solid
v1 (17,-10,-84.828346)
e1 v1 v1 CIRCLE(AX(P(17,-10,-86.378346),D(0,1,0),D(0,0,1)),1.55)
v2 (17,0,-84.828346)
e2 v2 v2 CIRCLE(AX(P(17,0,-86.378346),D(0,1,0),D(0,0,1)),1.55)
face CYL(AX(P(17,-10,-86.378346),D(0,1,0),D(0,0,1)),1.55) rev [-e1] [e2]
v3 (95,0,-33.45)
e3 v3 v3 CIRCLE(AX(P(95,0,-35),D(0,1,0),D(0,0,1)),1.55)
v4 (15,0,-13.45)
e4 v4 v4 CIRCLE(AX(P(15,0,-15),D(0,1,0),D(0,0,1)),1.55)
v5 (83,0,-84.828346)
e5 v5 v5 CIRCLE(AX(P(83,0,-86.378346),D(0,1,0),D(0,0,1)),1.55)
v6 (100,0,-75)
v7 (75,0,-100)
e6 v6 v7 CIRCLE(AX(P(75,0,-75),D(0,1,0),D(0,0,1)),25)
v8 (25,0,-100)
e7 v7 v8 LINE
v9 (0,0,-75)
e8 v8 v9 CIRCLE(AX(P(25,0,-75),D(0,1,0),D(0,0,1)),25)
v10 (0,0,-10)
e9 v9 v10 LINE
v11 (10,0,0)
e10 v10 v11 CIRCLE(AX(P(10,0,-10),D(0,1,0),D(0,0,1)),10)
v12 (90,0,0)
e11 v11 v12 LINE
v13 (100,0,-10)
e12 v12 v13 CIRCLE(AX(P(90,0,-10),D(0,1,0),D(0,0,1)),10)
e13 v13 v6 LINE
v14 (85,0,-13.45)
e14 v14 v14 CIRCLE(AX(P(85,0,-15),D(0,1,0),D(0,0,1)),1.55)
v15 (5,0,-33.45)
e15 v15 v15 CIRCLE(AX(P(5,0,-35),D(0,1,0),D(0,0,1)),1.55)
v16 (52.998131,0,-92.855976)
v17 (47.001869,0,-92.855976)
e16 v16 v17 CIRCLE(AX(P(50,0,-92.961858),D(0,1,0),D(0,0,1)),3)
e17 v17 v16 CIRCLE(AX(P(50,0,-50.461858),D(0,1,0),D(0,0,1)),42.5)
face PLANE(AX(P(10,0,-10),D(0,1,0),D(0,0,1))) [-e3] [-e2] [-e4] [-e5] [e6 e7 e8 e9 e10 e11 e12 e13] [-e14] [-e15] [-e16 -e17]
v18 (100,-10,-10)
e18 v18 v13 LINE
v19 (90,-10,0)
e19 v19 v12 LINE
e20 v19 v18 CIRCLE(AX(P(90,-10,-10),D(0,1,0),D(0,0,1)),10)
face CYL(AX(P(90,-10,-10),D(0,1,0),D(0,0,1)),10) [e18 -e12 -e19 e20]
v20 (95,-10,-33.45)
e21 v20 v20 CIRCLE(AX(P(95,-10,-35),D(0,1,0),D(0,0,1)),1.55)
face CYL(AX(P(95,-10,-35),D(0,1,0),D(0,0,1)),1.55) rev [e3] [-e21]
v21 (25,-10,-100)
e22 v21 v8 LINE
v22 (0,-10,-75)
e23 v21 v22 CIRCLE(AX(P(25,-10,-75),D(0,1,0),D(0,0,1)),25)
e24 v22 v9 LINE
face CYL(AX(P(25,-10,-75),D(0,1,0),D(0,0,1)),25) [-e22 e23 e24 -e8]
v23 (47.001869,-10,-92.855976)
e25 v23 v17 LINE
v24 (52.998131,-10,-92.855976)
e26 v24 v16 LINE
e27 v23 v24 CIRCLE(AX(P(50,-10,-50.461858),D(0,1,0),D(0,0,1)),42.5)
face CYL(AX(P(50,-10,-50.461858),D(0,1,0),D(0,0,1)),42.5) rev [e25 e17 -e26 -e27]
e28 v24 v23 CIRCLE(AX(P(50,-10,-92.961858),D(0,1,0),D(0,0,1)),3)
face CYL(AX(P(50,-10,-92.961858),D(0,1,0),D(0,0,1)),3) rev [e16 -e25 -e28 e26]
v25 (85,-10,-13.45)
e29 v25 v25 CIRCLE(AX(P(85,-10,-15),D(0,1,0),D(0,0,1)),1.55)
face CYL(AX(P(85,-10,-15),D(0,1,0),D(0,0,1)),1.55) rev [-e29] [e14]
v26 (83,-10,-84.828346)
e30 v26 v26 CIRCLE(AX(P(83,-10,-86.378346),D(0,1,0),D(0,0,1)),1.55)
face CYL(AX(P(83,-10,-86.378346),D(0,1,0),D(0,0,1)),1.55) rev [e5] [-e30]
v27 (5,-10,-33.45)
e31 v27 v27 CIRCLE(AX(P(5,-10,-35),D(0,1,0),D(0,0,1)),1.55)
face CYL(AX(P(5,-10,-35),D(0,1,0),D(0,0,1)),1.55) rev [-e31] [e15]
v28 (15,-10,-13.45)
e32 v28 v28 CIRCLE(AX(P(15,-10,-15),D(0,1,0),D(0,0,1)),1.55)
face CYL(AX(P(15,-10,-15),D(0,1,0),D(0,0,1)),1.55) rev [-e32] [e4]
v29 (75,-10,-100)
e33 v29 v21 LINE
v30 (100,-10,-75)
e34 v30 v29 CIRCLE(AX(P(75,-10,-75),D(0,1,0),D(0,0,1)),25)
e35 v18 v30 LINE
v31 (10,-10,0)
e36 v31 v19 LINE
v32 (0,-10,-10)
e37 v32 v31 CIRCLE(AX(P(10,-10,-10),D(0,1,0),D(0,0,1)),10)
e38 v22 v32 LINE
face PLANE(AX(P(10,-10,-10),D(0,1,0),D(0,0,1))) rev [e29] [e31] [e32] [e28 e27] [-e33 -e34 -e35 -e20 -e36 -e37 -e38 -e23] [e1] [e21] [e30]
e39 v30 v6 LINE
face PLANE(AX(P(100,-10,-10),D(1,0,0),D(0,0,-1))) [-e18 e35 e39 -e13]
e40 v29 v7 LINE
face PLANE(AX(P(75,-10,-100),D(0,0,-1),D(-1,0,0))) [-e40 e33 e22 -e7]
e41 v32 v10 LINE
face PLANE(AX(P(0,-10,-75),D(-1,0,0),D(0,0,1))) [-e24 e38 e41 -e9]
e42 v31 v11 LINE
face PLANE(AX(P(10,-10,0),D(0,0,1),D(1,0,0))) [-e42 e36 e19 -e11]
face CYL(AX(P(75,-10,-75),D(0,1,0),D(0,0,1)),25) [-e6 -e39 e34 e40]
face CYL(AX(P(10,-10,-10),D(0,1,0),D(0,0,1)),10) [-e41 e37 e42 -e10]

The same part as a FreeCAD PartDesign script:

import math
import FreeCAD as App
import Part
import Sketcher
Q = App.Units.Quantity

doc = App.newDocument("Part")
body = doc.addObject("PartDesign::Body", "Body")

# Sketch on XZ plane
sketch1 = body.newObject("Sketcher::SketchObject", "Sketch")
sketch1.AttachmentSupport = (doc.getObject("XZ_Plane"), [""])
sketch1.MapMode = "FlatFace"
sketch1.addGeometry(Part.LineSegment(App.Vector(10, 0, 0), App.Vector(90, 0, 0)), False)
sketch1.addGeometry(Part.ArcOfCircle(Part.Circle(App.Vector(90, -10, 0), App.Vector(0, 0, 1), 10), math.radians(0), math.radians(90)), False)
sketch1.addGeometry(Part.LineSegment(App.Vector(100, -10, 0), App.Vector(100, -75, 0)), False)
sketch1.addGeometry(Part.ArcOfCircle(Part.Circle(App.Vector(75, -75, 0), App.Vector(0, 0, 1), 25), math.radians(-90), math.radians(0)), False)
sketch1.addGeometry(Part.LineSegment(App.Vector(75, -100, 0), App.Vector(25, -100, 0)), False)
sketch1.addGeometry(Part.ArcOfCircle(Part.Circle(App.Vector(25, -75, 0), App.Vector(0, 0, 1), 25), math.radians(180), math.radians(270)), False)
sketch1.addGeometry(Part.LineSegment(App.Vector(0, -75, 0), App.Vector(0, -10, 0)), False)
sketch1.addGeometry(Part.ArcOfCircle(Part.Circle(App.Vector(10, -10, 0), App.Vector(0, 0, 1), 10), math.radians(90), math.radians(180)), False)
sketch1.addConstraint(Sketcher.Constraint("Tangent", 0, 2, 1, 2))
sketch1.addConstraint(Sketcher.Constraint("Tangent", 1, 1, 2, 1))
sketch1.addConstraint(Sketcher.Constraint("Tangent", 2, 2, 3, 2))
sketch1.addConstraint(Sketcher.Constraint("Tangent", 3, 1, 4, 1))
sketch1.addConstraint(Sketcher.Constraint("Tangent", 4, 2, 5, 2))
sketch1.addConstraint(Sketcher.Constraint("Tangent", 5, 1, 6, 1))
sketch1.addConstraint(Sketcher.Constraint("Tangent", 6, 2, 7, 2))
sketch1.addConstraint(Sketcher.Constraint("Tangent", 7, 1, 0, 1))
sketch1.addConstraint(Sketcher.Constraint("Horizontal", 0))
sketch1.addConstraint(Sketcher.Constraint("Vertical", 2))
sketch1.addConstraint(Sketcher.Constraint("Horizontal", 4))
sketch1.addConstraint(Sketcher.Constraint("Vertical", 6))
sketch1.addConstraint(Sketcher.Constraint("Equal", 3, 5))
sketch1.addConstraint(Sketcher.Constraint("Equal", 1, 7))
sketch1.addConstraint(Sketcher.Constraint("PointOnObject", 0, 2, -1))
sketch1.addConstraint(Sketcher.Constraint("PointOnObject", 5, 1, -2))
sketch1.addConstraint(Sketcher.Constraint("Radius", 1, Q("10 mm")))
sketch1.addConstraint(Sketcher.Constraint("Radius", 3, Q("25 mm")))
sketch1.addConstraint(Sketcher.Constraint("DistanceX", 0, 1, 0, 2, Q("80 mm")))
sketch1.addConstraint(Sketcher.Constraint("DistanceY", 2, 2, 2, 1, Q("65 mm")))
pad1 = body.newObject("PartDesign::Pad", "Pad")
pad1.Profile = sketch1
pad1.Length = 10

# Sketch on XZ plane
sketch2 = body.newObject("Sketcher::SketchObject", "Sketch001")
sketch2.AttachmentSupport = (doc.getObject("XZ_Plane"), [""])
sketch2.MapMode = "FlatFace"
sketch2.addGeometry(Part.ArcOfCircle(Part.Circle(App.Vector(50, -50.461858, 0), App.Vector(0, 0, 1), 42.5), math.radians(-85.954752), math.radians(265.954752)), False)
sketch2.addGeometry(Part.ArcOfCircle(Part.Circle(App.Vector(50, -92.961858, 0), App.Vector(0, 0, 1), 3), math.radians(177.977376), math.radians(362.022624)), False)
sketch2.addConstraint(Sketcher.Constraint("Coincident", 0, 1, 1, 2))
sketch2.addConstraint(Sketcher.Constraint("Coincident", 1, 1, 0, 2))
sketch2.addConstraint(Sketcher.Constraint("Horizontal", 0, 1, 1, 1))
sketch2.addConstraint(Sketcher.Constraint("Radius", 1, Q("3 mm")))
sketch2.addConstraint(Sketcher.Constraint("Radius", 0, Q("42.5 mm")))
sketch2.addConstraint(Sketcher.Constraint("DistanceX", -1, 1, 0, 3, Q("50 mm")))
sketch2.addConstraint(Sketcher.Constraint("DistanceY", 1, 3, 0, 3, Q("42.5 mm")))
sketch2.addConstraint(Sketcher.Constraint("DistanceY", 0, 3, -1, 1, Q("50.461858 mm")))
pocket1 = body.newObject("PartDesign::Pocket", "Pocket")
pocket1.Profile = sketch2
pocket1.Type = "ThroughAll"
pocket1.Reversed = True

# Sketch on XZ plane
sketch3 = body.newObject("Sketcher::SketchObject", "Sketch002")
sketch3.AttachmentSupport = (doc.getObject("XZ_Plane"), [""])
sketch3.MapMode = "FlatFace"
sketch3.addGeometry(Part.Circle(App.Vector(83, -86.378346, 0), App.Vector(0, 0, 1), 1.55), False)
sketch3.addGeometry(Part.Circle(App.Vector(85, -15, 0), App.Vector(0, 0, 1), 1.55), False)
sketch3.addGeometry(Part.Circle(App.Vector(5, -35, 0), App.Vector(0, 0, 1), 1.55), False)
sketch3.addGeometry(Part.Circle(App.Vector(95, -35, 0), App.Vector(0, 0, 1), 1.55), False)
sketch3.addGeometry(Part.Circle(App.Vector(17, -86.378346, 0), App.Vector(0, 0, 1), 1.55), False)
sketch3.addGeometry(Part.Circle(App.Vector(15, -15, 0), App.Vector(0, 0, 1), 1.55), False)
sketch3.addConstraint(Sketcher.Constraint("Equal", 0, 1))
sketch3.addConstraint(Sketcher.Constraint("Equal", 1, 2))
sketch3.addConstraint(Sketcher.Constraint("Equal", 2, 3))
sketch3.addConstraint(Sketcher.Constraint("Equal", 3, 4))
sketch3.addConstraint(Sketcher.Constraint("Equal", 4, 5))
sketch3.addConstraint(Sketcher.Constraint("Horizontal", 2, 3, 3, 3))
sketch3.addConstraint(Sketcher.Constraint("Horizontal", 0, 3, 4, 3))
sketch3.addConstraint(Sketcher.Constraint("Horizontal", 1, 3, 5, 3))
sketch3.addConstraint(Sketcher.Constraint("Diameter", 0, Q("3.1 mm")))
sketch3.addConstraint(Sketcher.Constraint("DistanceX", -1, 1, 0, 3, Q("83 mm")))
sketch3.addConstraint(Sketcher.Constraint("DistanceX", -1, 1, 1, 3, Q("85 mm")))
sketch3.addConstraint(Sketcher.Constraint("DistanceY", 1, 3, -1, 1, Q("15 mm")))
sketch3.addConstraint(Sketcher.Constraint("DistanceX", -1, 1, 2, 3, Q("5 mm")))
sketch3.addConstraint(Sketcher.Constraint("DistanceY", 2, 3, -1, 1, Q("35 mm")))
sketch3.addConstraint(Sketcher.Constraint("DistanceX", -1, 1, 3, 3, Q("95 mm")))
sketch3.addConstraint(Sketcher.Constraint("DistanceX", -1, 1, 4, 3, Q("17 mm")))
sketch3.addConstraint(Sketcher.Constraint("DistanceX", -1, 1, 5, 3, Q("15 mm")))
sketch3.addConstraint(Sketcher.Constraint("DistanceY", 0, 3, -1, 1, Q("86.378346 mm")))
pocket2 = body.newObject("PartDesign::Pocket", "Pocket001")
pocket2.Profile = sketch3
pocket2.Type = "ThroughAll"
pocket2.Reversed = True

doc.recompute()
